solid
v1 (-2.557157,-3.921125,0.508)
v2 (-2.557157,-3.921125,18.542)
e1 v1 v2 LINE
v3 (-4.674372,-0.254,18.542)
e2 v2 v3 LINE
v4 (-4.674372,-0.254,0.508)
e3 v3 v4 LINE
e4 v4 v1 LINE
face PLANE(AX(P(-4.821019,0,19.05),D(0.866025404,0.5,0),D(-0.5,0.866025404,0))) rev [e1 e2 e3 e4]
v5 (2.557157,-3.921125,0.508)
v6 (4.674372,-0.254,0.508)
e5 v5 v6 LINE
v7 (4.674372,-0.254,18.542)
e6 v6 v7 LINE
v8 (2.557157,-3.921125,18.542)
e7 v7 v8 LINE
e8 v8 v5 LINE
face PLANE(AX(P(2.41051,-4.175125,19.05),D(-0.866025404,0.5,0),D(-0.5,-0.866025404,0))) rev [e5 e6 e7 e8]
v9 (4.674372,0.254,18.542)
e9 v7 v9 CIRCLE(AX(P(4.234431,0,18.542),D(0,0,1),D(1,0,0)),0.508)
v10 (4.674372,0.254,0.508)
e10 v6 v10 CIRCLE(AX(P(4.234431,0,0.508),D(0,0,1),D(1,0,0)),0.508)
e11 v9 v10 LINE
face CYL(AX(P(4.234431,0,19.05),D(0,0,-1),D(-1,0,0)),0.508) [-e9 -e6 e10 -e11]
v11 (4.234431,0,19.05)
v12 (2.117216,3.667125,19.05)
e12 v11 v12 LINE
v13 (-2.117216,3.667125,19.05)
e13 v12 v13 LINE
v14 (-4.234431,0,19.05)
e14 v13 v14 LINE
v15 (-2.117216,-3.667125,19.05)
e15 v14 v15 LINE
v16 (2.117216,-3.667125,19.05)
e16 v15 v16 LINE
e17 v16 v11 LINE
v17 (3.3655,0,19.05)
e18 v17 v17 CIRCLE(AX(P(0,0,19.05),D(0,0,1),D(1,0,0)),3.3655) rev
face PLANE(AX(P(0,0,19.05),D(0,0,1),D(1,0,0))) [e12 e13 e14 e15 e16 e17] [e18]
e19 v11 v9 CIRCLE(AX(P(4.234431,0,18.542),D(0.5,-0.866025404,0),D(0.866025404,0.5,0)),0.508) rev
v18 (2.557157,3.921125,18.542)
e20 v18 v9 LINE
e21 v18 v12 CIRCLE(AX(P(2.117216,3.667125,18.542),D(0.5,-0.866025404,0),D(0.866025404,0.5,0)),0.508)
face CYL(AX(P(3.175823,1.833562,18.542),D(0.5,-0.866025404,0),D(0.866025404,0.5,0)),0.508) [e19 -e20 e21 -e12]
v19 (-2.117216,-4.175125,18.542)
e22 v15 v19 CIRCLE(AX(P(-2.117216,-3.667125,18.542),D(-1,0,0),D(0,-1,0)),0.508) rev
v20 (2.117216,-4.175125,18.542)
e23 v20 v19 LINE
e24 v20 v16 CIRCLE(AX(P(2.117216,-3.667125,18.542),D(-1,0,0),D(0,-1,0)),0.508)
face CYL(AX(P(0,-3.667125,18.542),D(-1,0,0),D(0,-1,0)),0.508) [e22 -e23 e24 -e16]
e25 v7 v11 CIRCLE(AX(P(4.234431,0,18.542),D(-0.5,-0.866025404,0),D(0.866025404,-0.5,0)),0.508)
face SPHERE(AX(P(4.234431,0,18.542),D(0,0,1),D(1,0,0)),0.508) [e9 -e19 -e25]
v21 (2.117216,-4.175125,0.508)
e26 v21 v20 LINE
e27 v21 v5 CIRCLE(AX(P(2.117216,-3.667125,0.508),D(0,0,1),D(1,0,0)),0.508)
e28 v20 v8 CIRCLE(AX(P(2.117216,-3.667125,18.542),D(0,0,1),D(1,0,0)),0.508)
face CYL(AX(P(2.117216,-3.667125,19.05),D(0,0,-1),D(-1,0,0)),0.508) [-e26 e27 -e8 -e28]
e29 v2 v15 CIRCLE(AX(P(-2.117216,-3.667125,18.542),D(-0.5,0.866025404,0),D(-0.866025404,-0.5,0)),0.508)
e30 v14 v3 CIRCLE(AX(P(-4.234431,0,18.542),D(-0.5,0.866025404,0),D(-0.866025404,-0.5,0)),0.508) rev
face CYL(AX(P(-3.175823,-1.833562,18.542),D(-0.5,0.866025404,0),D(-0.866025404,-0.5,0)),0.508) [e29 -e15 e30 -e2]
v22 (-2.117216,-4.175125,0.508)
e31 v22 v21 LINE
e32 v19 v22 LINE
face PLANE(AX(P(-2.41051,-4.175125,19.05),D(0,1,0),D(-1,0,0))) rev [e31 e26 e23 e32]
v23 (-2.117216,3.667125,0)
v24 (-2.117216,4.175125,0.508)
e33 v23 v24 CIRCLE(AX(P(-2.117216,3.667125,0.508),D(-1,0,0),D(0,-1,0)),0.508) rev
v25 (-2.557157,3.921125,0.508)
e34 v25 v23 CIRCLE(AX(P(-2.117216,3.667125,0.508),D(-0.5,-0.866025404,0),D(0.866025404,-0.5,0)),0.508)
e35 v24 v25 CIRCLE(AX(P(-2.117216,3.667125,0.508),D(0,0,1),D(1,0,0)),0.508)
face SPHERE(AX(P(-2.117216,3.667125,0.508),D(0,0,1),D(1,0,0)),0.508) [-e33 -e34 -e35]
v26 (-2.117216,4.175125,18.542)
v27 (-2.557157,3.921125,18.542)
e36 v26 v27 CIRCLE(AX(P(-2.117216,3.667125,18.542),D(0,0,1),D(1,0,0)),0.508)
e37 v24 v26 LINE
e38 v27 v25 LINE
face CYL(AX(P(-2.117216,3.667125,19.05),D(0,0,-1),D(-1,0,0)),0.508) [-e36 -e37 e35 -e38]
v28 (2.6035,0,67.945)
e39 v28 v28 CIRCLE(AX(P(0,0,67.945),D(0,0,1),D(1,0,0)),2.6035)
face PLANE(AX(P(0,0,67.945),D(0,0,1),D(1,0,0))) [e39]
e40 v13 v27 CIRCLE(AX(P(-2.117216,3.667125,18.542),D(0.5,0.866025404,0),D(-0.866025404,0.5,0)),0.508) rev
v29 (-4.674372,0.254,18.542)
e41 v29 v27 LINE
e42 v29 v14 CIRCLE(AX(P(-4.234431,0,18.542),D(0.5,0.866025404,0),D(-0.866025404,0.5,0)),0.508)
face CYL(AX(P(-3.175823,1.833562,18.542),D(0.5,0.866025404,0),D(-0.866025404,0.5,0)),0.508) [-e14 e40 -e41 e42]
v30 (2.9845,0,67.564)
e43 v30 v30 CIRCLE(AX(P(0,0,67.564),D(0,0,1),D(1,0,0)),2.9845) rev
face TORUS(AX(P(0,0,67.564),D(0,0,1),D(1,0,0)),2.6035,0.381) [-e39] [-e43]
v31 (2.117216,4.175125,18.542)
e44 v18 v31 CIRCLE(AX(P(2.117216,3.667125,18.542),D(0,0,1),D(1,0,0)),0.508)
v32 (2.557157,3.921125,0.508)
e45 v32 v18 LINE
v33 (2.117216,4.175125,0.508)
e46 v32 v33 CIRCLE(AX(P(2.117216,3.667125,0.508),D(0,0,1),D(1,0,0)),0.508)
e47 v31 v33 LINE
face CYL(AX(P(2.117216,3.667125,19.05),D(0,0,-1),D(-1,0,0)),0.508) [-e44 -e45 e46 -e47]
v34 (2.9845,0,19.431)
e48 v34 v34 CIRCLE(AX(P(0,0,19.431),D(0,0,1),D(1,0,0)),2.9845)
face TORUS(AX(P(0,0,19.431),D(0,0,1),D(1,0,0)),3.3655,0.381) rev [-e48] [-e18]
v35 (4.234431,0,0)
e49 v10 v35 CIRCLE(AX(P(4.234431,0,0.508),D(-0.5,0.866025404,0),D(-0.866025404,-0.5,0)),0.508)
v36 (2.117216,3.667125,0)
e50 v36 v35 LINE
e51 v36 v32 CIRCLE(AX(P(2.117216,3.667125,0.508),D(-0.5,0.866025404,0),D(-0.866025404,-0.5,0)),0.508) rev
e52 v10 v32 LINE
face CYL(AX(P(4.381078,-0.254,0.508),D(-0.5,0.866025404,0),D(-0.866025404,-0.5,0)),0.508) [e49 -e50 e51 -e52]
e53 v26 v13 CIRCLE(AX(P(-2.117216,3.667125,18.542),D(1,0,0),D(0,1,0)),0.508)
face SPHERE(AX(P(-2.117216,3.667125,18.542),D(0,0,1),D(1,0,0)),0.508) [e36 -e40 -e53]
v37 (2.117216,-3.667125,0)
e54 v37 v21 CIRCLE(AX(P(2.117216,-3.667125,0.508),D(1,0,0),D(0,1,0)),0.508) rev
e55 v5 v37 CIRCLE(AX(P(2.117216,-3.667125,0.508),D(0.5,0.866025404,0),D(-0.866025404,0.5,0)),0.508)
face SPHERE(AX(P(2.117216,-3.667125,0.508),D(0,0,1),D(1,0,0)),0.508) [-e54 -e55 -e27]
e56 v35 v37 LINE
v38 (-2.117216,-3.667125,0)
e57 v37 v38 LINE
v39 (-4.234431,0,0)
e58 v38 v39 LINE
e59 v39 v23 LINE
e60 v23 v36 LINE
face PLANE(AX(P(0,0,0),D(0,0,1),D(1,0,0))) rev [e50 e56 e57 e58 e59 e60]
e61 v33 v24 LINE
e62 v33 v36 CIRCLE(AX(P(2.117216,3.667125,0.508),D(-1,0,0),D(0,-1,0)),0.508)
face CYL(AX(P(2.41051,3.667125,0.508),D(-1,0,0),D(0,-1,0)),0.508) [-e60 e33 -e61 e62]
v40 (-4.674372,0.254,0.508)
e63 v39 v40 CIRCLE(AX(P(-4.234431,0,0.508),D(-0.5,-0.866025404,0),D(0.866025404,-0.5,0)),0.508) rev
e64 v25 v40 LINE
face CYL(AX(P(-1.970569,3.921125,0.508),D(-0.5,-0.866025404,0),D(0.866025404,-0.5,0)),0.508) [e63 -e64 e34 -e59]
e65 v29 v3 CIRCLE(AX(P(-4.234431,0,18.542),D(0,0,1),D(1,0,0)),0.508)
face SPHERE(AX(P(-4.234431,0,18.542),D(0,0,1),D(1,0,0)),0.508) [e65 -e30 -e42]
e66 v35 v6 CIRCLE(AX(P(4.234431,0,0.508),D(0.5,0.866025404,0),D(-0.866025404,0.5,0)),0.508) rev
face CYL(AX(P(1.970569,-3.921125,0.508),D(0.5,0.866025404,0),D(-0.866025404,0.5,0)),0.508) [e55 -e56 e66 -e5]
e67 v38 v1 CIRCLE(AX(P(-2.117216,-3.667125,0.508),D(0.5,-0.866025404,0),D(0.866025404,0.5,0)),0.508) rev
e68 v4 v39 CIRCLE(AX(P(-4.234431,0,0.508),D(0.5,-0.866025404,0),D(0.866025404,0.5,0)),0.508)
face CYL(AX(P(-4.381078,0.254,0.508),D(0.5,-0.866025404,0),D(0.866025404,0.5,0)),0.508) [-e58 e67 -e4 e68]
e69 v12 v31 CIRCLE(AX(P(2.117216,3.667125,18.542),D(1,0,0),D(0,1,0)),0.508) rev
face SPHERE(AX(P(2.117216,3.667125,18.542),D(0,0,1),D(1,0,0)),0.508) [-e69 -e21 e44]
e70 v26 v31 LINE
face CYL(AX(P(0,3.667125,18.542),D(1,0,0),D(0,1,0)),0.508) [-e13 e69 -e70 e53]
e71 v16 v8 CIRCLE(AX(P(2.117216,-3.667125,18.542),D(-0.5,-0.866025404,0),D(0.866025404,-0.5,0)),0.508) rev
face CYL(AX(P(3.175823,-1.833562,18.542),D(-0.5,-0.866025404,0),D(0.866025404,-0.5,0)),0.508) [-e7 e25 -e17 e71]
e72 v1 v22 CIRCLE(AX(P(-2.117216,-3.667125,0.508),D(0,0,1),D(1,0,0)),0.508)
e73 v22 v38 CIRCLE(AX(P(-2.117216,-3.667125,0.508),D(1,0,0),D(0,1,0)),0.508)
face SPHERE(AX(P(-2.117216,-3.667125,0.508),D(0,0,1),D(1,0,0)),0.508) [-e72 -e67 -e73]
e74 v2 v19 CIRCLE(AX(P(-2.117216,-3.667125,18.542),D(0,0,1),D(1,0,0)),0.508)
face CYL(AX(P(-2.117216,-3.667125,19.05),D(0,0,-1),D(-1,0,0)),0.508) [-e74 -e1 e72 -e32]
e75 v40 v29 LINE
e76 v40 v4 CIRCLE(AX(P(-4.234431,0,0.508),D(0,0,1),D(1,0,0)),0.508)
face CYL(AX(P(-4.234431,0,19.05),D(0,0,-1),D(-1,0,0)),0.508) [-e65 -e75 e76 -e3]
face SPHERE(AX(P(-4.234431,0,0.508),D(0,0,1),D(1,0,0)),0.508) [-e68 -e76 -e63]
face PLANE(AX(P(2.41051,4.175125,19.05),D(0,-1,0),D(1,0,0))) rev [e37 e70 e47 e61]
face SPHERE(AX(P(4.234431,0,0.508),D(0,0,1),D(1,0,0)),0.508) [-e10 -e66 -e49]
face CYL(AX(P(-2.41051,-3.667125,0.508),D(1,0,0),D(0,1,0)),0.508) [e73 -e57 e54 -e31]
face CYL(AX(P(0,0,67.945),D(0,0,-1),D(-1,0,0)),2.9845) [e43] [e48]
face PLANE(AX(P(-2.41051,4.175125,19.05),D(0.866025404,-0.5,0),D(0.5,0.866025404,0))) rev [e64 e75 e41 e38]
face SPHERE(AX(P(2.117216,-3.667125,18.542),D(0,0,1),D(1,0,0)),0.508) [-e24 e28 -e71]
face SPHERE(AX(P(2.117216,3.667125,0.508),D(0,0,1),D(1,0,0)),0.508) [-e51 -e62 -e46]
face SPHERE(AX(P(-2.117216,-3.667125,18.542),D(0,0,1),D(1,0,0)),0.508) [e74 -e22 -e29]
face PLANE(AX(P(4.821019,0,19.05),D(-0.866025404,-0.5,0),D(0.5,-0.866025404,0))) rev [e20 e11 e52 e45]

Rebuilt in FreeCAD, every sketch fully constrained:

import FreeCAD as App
import Part
import Sketcher
Q = App.Units.Quantity


def edges_at(feature, points):
    """Names of the edges that pass closest to the given points."""
    edges = feature.Shape.Edges
    near = lambda p: min(range(len(edges)), key=lambda i: edges[i].distToShape(Part.Vertex(*p))[0])
    return sorted({f"Edge{near(p) + 1}" for p in points})


def add_polygon(sketch, points):
    """Adds a closed chain of lines whose ends are joined by coincident constraints."""
    first, n = sketch.GeometryCount, len(points)
    for a, b in zip(points, points[1:] + points[:1]):
        sketch.addGeometry(Part.LineSegment(App.Vector(*a, 0), App.Vector(*b, 0)), False)
    for i in range(n):
        sketch.addConstraint(Sketcher.Constraint("Coincident", first + i, 2, first + (i + 1) % n, 1))

doc = App.newDocument("Part")
body = doc.addObject("PartDesign::Body", "Body")

# Sketch on XY plane
sketch1 = body.newObject("Sketcher::SketchObject", "Sketch")
sketch1.AttachmentSupport = (doc.getObject("XY_Plane"), [""])
sketch1.MapMode = "FlatFace"
add_polygon(sketch1, [(2.41051, -4.175125), (4.821019, 0), (2.41051, 4.175125), (-2.41051, 4.175125), (-4.821019, 0), (-2.41051, -4.175125)])  # lines 0-5
sketch1.addConstraint([
    Sketcher.Constraint("Horizontal", 2),
    Sketcher.Constraint("Horizontal", 5),
    Sketcher.Constraint("Symmetric", 0, 2, 3, 2, -1, 1),
    Sketcher.Constraint("Symmetric", 1, 2, 4, 2, -1, 1),
    Sketcher.Constraint("PointOnObject", 0, 2, -1),
    Sketcher.Constraint("Parallel", 0, 3),
    Sketcher.Constraint("Vertical", 2, 2, 4, 2),
    Sketcher.Constraint("Angle", 0, Q("60 deg")),
    Sketcher.Constraint("DistanceX", 2, 2, 2, 1, Q("4.821019 mm")),
    Sketcher.Constraint("Distance", 0, Q("4.821019 mm")),
])
pad1 = body.newObject("PartDesign::Pad", "Pad")
pad1.Profile = sketch1
pad1.Length = Q("0.75 in")

# Sketch on XY plane
sketch2 = body.newObject("Sketcher::SketchObject", "Sketch001")
sketch2.AttachmentSupport = (doc.getObject("XY_Plane"), [""])
sketch2.MapMode = "FlatFace"
sketch2.AttachmentOffset = App.Placement(App.Vector(0, 0, 0.75 * 25.4), App.Rotation())
sketch2.addGeometry(Part.Circle(App.Vector(0, 0, 0), App.Vector(0, 0, 1), 2.9845), False)
sketch2.addConstraint([
    Sketcher.Constraint("Coincident", 0, 3, -1, 1),
    Sketcher.Constraint("Diameter", 0, Q("0.235 in")),
])
pad2 = body.newObject("PartDesign::Pad", "Pad001")
pad2.Profile = sketch2
pad2.Length = Q("1.925 in")
doc.recompute()

fillet = body.newObject("PartDesign::Fillet", "Fillet")
fillet.Base = (pad2, edges_at(pad2, [(-2.985, 0, 67.945)]))
fillet.Radius = Q("0.015 in")
doc.recompute()

fillet2 = body.newObject("PartDesign::Fillet", "Fillet001")
fillet2.Base = (fillet, edges_at(fillet, [(-2.985, 0, 19.05)]))
fillet2.Radius = Q("0.015 in")
doc.recompute()

fillet3 = body.newObject("PartDesign::Fillet", "Fillet002")
fillet3.Base = (fillet2, edges_at(fillet2, [
    (3.616, 2.088, 19.05),
    (0, 4.175, 19.05),
    (-3.616, 2.088, 19.05),
    (-3.616, -2.088, 19.05),
    (0, -4.175, 19.05),
    (-3.616, -2.088, 0),
    (-3.616, 2.088, 0),
    (0, 4.175, 0),
    (3.616, 2.088, 0),
    (3.616, -2.088, 0),
    (0, -4.175, 0),
    (3.616, -2.088, 19.05),
]))
fillet3.Radius = Q("0.02 in")
doc.recompute()

fillet4 = body.newObject("PartDesign::Fillet", "Fillet003")
fillet4.Base = (fillet3, edges_at(fillet3, [
    (4.821, 0, 9.525),
    (2.411, -4.175, 9.525),
    (2.411, 4.175, 9.525),
    (-2.411, -4.175, 9.525),
    (-2.411, 4.175, 9.525),
    (-4.821, 0, 9.525),
    (-4.634, 0, 0.136),
    (-2.317, 4.013, 0.136),
    (-2.317, -4.013, 0.136),
    (2.317, 4.013, 0.136),
    (2.317, -4.013, 0.136),
    (4.634, 0, 0.136),
    (-2.317, -4.013, 18.914),
    (-4.634, 0, 18.914),
    (2.317, -4.013, 18.914),
    (-2.317, 4.013, 18.914),
    (4.634, 0, 18.914),
    (2.317, 4.013, 18.914),
]))
fillet4.Radius = Q("0.02 in")

doc.recompute()
